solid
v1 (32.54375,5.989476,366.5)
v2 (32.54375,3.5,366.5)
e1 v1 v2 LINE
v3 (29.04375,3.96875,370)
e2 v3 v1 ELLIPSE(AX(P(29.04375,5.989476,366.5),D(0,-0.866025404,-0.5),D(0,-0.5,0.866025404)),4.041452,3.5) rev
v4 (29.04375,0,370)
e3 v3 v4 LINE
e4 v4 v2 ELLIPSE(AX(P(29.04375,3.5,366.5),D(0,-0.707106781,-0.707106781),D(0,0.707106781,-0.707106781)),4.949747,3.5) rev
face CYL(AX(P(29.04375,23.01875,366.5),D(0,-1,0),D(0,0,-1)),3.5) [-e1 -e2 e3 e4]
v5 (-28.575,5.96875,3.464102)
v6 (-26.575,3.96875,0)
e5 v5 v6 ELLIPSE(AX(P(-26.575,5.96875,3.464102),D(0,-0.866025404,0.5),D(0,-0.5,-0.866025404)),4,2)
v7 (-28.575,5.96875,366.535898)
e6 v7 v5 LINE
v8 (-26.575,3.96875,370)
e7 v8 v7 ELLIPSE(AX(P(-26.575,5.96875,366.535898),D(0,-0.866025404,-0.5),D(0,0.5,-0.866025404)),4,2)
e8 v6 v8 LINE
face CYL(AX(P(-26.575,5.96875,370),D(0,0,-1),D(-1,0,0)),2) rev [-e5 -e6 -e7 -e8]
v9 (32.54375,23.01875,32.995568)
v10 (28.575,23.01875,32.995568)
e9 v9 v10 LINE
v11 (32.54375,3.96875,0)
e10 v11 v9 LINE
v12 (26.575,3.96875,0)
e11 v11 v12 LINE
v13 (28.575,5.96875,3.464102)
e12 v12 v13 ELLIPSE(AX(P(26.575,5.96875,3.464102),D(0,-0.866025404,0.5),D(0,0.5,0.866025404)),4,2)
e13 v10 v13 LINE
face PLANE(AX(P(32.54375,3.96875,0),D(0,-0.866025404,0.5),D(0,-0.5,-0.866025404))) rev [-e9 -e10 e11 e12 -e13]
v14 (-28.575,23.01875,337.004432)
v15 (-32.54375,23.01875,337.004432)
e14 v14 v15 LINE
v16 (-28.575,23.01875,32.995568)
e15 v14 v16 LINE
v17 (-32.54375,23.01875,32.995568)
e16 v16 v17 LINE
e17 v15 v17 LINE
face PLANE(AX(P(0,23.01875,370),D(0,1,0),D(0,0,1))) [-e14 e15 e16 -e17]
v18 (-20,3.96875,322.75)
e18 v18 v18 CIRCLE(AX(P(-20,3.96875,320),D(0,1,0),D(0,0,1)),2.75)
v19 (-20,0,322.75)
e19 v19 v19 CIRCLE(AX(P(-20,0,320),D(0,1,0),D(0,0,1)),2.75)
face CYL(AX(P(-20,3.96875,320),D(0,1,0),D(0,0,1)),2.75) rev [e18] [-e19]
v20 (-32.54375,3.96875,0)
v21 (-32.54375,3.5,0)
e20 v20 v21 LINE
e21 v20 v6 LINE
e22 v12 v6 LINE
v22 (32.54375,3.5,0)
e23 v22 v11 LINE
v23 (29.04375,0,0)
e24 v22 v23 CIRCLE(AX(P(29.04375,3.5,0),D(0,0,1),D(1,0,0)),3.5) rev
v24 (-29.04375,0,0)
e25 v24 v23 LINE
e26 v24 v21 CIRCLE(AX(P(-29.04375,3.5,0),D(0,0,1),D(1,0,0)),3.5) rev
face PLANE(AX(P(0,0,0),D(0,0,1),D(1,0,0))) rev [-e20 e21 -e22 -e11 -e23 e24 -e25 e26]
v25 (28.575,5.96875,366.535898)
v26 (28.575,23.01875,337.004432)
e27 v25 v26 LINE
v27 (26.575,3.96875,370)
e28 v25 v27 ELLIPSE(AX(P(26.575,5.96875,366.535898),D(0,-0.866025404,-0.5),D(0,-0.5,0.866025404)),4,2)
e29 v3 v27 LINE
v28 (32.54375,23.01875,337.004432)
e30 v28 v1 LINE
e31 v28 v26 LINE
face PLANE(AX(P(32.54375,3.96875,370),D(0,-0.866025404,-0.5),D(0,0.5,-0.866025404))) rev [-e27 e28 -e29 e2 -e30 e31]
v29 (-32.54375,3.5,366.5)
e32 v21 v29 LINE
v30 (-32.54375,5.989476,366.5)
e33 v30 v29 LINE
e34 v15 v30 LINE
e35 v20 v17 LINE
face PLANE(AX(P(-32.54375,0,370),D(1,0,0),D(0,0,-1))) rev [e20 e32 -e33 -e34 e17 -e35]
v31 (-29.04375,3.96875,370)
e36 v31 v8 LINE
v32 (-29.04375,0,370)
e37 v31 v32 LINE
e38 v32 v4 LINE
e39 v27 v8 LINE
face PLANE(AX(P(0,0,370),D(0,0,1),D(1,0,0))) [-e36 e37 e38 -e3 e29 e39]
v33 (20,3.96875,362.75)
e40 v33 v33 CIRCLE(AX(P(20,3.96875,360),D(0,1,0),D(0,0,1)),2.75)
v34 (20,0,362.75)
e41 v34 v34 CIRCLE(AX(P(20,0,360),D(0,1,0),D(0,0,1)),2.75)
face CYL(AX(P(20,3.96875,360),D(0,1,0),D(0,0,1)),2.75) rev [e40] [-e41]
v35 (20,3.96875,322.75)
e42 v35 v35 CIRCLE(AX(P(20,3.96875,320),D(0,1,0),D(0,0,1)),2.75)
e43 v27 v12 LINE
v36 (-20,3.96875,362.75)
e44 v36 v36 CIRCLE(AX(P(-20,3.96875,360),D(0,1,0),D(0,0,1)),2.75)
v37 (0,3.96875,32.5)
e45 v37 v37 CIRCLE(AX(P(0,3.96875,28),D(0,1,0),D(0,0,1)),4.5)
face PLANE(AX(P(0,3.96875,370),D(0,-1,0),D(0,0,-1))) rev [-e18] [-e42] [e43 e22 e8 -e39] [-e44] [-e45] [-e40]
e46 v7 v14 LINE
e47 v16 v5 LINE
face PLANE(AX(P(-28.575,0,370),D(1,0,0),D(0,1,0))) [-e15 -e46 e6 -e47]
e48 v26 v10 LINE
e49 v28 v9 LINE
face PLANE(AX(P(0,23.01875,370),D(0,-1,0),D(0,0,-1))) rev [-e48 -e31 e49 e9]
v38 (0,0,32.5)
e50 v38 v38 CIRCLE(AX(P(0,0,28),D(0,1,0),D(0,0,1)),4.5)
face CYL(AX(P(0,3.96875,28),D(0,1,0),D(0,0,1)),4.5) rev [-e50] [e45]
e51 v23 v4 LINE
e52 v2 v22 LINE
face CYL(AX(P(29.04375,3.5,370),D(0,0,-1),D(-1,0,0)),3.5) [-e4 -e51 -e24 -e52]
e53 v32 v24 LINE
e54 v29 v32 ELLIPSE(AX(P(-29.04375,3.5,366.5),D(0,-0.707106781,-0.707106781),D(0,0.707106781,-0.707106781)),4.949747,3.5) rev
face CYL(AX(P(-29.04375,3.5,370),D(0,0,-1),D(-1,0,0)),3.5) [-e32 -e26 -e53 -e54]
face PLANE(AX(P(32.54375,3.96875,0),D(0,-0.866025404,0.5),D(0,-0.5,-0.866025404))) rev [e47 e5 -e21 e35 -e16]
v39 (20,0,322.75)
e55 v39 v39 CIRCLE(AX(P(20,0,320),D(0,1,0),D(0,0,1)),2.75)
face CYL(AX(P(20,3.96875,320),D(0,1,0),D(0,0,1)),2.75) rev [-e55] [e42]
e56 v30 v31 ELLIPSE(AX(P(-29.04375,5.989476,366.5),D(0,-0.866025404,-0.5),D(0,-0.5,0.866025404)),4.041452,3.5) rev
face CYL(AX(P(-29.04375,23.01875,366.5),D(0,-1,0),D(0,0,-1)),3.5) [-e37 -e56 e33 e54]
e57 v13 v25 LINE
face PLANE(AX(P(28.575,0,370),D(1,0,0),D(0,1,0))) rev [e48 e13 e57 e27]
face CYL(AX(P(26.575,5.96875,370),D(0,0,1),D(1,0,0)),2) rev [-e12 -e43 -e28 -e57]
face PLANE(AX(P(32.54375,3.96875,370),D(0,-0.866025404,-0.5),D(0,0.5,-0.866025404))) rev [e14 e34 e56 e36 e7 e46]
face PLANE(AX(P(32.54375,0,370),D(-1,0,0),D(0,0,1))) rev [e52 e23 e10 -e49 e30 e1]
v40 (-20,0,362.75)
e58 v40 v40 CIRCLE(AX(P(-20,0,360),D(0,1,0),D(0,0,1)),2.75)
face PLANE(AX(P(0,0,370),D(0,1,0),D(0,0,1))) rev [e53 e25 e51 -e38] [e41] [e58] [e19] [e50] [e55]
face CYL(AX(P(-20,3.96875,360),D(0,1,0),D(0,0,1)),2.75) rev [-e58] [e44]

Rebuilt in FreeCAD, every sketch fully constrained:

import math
import FreeCAD as App
import Part
import Sketcher
from FreeCAD import Vector
Q = App.Units.Quantity


def edges_at(feature, points):
    """Names of the edges that pass closest to the given points."""
    edges = feature.Shape.Edges
    near = lambda p: min(range(len(edges)), key=lambda i: edges[i].distToShape(Part.Vertex(*p))[0])
    return sorted({f"Edge{near(p) + 1}" for p in points})


def add_polygon(sketch, points):
    """Adds a closed chain of lines whose ends are joined by coincident constraints."""
    first, n = sketch.GeometryCount, len(points)
    for a, b in zip(points, points[1:] + points[:1]):
        sketch.addGeometry(Part.LineSegment(App.Vector(*a, 0), App.Vector(*b, 0)), False)
    for i in range(n):
        sketch.addConstraint(Sketcher.Constraint("Coincident", first + i, 2, first + (i + 1) % n, 1))

doc = App.newDocument("Part")
body = doc.addObject("PartDesign::Body", "Body")

sketch1 = doc.addObject("Sketcher::SketchObject", "Sketch")
body.addObject(sketch1)
sketch1.AttachmentSupport = (doc.XY_Plane, [""])
sketch1.MapMode = "FlatFace"
add_polygon(sketch1, [(32.5, 0), (32.5, 23), (28.6, 23), (28.6, 4), (-28.6, 4), (-28.6, 23), (-32.5, 23), (-32.5, 0)])
sketch1.addConstraint(Sketcher.Constraint("Vertical", 0))
sketch1.addConstraint(Sketcher.Constraint("Horizontal", 1))
sketch1.addConstraint(Sketcher.Constraint("Vertical", 2))
sketch1.addConstraint(Sketcher.Constraint("Horizontal", 3))
sketch1.addConstraint(Sketcher.Constraint("Vertical", 4))
sketch1.addConstraint(Sketcher.Constraint("Horizontal", 5))
sketch1.addConstraint(Sketcher.Constraint("Vertical", 6))
sketch1.addConstraint(Sketcher.Constraint("Horizontal", 7))
sketch1.addConstraint(Sketcher.Constraint("Symmetric", 6, 2, 7, 2, -1, 1))
sketch1.addConstraint(Sketcher.Constraint("Symmetric", 1, 2, 4, 2, -2))
sketch1.addConstraint(Sketcher.Constraint("DistanceX", 3, 2, 3, 1, 57.15))
sketch1.addConstraint(Sketcher.Constraint("DistanceY", 2, 2, 2, 1, 19.05))
sketch1.addConstraint(Sketcher.Constraint("DistanceX", 7, 1, 7, 2, 65.0875))
sketch1.addConstraint(Sketcher.Constraint("DistanceY", 0, 1, 0, 2, 23.01875))
pad1 = doc.addObject("PartDesign::Pad", "Pad")
body.addObject(pad1)
pad1.Profile = sketch1
pad1.Length = 370

sketch2 = doc.addObject("Sketcher::SketchObject", "Sketch001")
body.addObject(sketch2)
sketch2.AttachmentSupport = (doc.YZ_Plane, [""])
sketch2.MapMode = "FlatFace"
sketch2.AttachmentOffset = App.Placement(Vector(0, 0, -32.54375), App.Rotation())
add_polygon(sketch2, [(4, 0), (23, 33), (23, 0)])
add_polygon(sketch2, [(4, 370), (23, 370), (23, 337)])
sketch2.addConstraint(Sketcher.Constraint("Vertical", 1))
sketch2.addConstraint(Sketcher.Constraint("Horizontal", 2))
sketch2.addConstraint(Sketcher.Constraint("Horizontal", 3))
sketch2.addConstraint(Sketcher.Constraint("Vertical", 4))
sketch2.addConstraint(Sketcher.Constraint("PointOnObject", 1, 2, -1))
sketch2.addConstraint(Sketcher.Constraint("Vertical", 1, 2, 3, 2))
sketch2.addConstraint(Sketcher.Constraint("Vertical", 2, 2, 5, 2))
sketch2.addConstraint(Sketcher.Constraint("Equal", 1, 4))
sketch2.addConstraint(Sketcher.Constraint("Angle", 0, Q("60 deg")))
sketch2.addConstraint(Sketcher.Constraint("DistanceY", -1, 1, 3, 2, 370.0))
sketch2.addConstraint(Sketcher.Constraint("Distance", 0, 38.1))
sketch2.addConstraint(Sketcher.Constraint("DistanceX", -1, 1, 0, 2, 23.01875))
pocket1 = doc.addObject("PartDesign::Pocket", "Pocket")
body.addObject(pocket1)
pocket1.Profile = sketch2
pocket1.Type = "ThroughAll"
pocket1.Reversed = True

sketch3 = doc.addObject("Sketcher::SketchObject", "Sketch002")
body.addObject(sketch3)
sketch3.AttachmentSupport = (doc.XZ_Plane, [""])
sketch3.MapMode = "FlatFace"
sketch3.AttachmentOffset = App.Placement(Vector(0, 0, -3.96875), App.Rotation())
sketch3.addGeometry(Part.Circle(Vector(20, 360, 0), Vector(0, 0, 1), 2.8), False)
sketch3.addGeometry(Part.Circle(Vector(20, 320, 0), Vector(0, 0, 1), 2.8), False)
sketch3.addGeometry(Part.Circle(Vector(-20, 320, 0), Vector(0, 0, 1), 2.8), False)
sketch3.addGeometry(Part.Circle(Vector(-20, 360, 0), Vector(0, 0, 1), 2.8), False)
sketch3.addConstraint(Sketcher.Constraint("Equal", 0, 1))
sketch3.addConstraint(Sketcher.Constraint("Equal", 1, 2))
sketch3.addConstraint(Sketcher.Constraint("Equal", 2, 3))
sketch3.addConstraint(Sketcher.Constraint("Symmetric", 1, 3, 2, 3, -2))
sketch3.addConstraint(Sketcher.Constraint("Symmetric", 0, 3, 3, 3, -2))
sketch3.addConstraint(Sketcher.Constraint("Vertical", 0, 3, 1, 3))
sketch3.addConstraint(Sketcher.Constraint("Diameter", 0, 5.5))
sketch3.addConstraint(Sketcher.Constraint("DistanceX", -1, 1, 0, 3, 20.0))
sketch3.addConstraint(Sketcher.Constraint("DistanceY", -1, 1, 0, 3, 360.0))
sketch3.addConstraint(Sketcher.Constraint("DistanceY", -1, 1, 1, 3, 320.0))
doc.recompute()
hole = doc.addObject("PartDesign::Hole", "Hole")
body.addObject(hole)
hole.Profile = sketch3
hole.ThreadType = "None"
hole.Diameter = 5.5
hole.DepthType = "ThroughAll"
hole.Reversed = True

sketch4 = doc.addObject("Sketcher::SketchObject", "Sketch003")
body.addObject(sketch4)
sketch4.AttachmentSupport = (doc.XZ_Plane, [""])
sketch4.MapMode = "FlatFace"
sketch4.AttachmentOffset = App.Placement(Vector(0, 0, -3.96875), App.Rotation())
sketch4.addGeometry(Part.Circle(Vector(0, 28, 0), Vector(0, 0, 1), 4.5), False)
sketch4.addConstraint(Sketcher.Constraint("PointOnObject", 0, 3, -2))
sketch4.addConstraint(Sketcher.Constraint("Diameter", 0, 9.0))
sketch4.addConstraint(Sketcher.Constraint("DistanceY", -1, 1, 0, 3, 28.0))
doc.recompute()
hole2 = doc.addObject("PartDesign::Hole", "Hole001")
body.addObject(hole2)
hole2.Profile = sketch4
hole2.ThreadType = "None"
hole2.Diameter = 9
hole2.DepthType = "ThroughAll"
hole2.Reversed = True
doc.recompute()

fillet = doc.addObject("PartDesign::Fillet", "Fillet")
body.addObject(fillet)
fillet.Base = (hole2, edges_at(hole2, [(28.575, 3.969, 185), (-28.575, 3.969, 185)]))
fillet.Radius = 2
doc.recompute()

fillet2 = doc.addObject("PartDesign::Fillet", "Fillet001")
body.addObject(fillet2)
fillet2.Base = (fillet, edges_at(fillet, [(32.544, 0, 185), (-32.544, 0, 185)]))
fillet2.Radius = 3.5

sketch5 = doc.addObject("Sketcher::SketchObject", "Sketch004")
body.addObject(sketch5)
sketch5.AttachmentSupport = (doc.XZ_Plane, [""])
sketch5.MapMode = "FlatFace"
sketch5.addGeometry(Part.LineSegment(Vector(-32.5, 370, 0), Vector(-32.5, 366.5, 0)), False)
sketch5.addGeometry(Part.ArcOfCircle(Part.Circle(Vector(-29, 366.5, 0), Vector(0, 0, 1), 3.5), math.radians(90), math.radians(180)), False)
sketch5.addGeometry(Part.LineSegment(Vector(-29, 370, 0), Vector(-32.5, 370, 0)), False)
sketch5.addGeometry(Part.LineSegment(Vector(32.5, 370, 0), Vector(29, 370, 0)), False)
sketch5.addGeometry(Part.ArcOfCircle(Part.Circle(Vector(29, 366.5, 0), Vector(0, 0, 1), 3.5), math.radians(0), math.radians(90)), False)
sketch5.addGeometry(Part.LineSegment(Vector(32.5, 366.5, 0), Vector(32.5, 370, 0)), False)
sketch5.addConstraint(Sketcher.Constraint("Tangent", 0, 2, 1, 2))
sketch5.addConstraint(Sketcher.Constraint("Tangent", 1, 1, 2, 1))
sketch5.addConstraint(Sketcher.Constraint("Coincident", 2, 2, 0, 1))
sketch5.addConstraint(Sketcher.Constraint("Tangent", 3, 2, 4, 2))
sketch5.addConstraint(Sketcher.Constraint("Tangent", 4, 1, 5, 1))
sketch5.addConstraint(Sketcher.Constraint("Coincident", 5, 2, 3, 1))
sketch5.addConstraint(Sketcher.Constraint("Vertical", 0))
sketch5.addConstraint(Sketcher.Constraint("Horizontal", 2))
sketch5.addConstraint(Sketcher.Constraint("Horizontal", 3))
sketch5.addConstraint(Sketcher.Constraint("Vertical", 5))
sketch5.addConstraint(Sketcher.Constraint("Equal", 1, 4))
sketch5.addConstraint(Sketcher.Constraint("Symmetric", 1, 3, 4, 3, -2))
sketch5.addConstraint(Sketcher.Constraint("Radius", 1, 3.5))
sketch5.addConstraint(Sketcher.Constraint("DistanceY", -1, 1, 1, 1, 370.0))
sketch5.addConstraint(Sketcher.Constraint("DistanceX", 1, 3, 4, 3, 58.0875))
pocket2 = doc.addObject("PartDesign::Pocket", "Pocket001")
body.addObject(pocket2)
pocket2.Profile = sketch5
pocket2.Type = "ThroughAll"

doc.recompute()
